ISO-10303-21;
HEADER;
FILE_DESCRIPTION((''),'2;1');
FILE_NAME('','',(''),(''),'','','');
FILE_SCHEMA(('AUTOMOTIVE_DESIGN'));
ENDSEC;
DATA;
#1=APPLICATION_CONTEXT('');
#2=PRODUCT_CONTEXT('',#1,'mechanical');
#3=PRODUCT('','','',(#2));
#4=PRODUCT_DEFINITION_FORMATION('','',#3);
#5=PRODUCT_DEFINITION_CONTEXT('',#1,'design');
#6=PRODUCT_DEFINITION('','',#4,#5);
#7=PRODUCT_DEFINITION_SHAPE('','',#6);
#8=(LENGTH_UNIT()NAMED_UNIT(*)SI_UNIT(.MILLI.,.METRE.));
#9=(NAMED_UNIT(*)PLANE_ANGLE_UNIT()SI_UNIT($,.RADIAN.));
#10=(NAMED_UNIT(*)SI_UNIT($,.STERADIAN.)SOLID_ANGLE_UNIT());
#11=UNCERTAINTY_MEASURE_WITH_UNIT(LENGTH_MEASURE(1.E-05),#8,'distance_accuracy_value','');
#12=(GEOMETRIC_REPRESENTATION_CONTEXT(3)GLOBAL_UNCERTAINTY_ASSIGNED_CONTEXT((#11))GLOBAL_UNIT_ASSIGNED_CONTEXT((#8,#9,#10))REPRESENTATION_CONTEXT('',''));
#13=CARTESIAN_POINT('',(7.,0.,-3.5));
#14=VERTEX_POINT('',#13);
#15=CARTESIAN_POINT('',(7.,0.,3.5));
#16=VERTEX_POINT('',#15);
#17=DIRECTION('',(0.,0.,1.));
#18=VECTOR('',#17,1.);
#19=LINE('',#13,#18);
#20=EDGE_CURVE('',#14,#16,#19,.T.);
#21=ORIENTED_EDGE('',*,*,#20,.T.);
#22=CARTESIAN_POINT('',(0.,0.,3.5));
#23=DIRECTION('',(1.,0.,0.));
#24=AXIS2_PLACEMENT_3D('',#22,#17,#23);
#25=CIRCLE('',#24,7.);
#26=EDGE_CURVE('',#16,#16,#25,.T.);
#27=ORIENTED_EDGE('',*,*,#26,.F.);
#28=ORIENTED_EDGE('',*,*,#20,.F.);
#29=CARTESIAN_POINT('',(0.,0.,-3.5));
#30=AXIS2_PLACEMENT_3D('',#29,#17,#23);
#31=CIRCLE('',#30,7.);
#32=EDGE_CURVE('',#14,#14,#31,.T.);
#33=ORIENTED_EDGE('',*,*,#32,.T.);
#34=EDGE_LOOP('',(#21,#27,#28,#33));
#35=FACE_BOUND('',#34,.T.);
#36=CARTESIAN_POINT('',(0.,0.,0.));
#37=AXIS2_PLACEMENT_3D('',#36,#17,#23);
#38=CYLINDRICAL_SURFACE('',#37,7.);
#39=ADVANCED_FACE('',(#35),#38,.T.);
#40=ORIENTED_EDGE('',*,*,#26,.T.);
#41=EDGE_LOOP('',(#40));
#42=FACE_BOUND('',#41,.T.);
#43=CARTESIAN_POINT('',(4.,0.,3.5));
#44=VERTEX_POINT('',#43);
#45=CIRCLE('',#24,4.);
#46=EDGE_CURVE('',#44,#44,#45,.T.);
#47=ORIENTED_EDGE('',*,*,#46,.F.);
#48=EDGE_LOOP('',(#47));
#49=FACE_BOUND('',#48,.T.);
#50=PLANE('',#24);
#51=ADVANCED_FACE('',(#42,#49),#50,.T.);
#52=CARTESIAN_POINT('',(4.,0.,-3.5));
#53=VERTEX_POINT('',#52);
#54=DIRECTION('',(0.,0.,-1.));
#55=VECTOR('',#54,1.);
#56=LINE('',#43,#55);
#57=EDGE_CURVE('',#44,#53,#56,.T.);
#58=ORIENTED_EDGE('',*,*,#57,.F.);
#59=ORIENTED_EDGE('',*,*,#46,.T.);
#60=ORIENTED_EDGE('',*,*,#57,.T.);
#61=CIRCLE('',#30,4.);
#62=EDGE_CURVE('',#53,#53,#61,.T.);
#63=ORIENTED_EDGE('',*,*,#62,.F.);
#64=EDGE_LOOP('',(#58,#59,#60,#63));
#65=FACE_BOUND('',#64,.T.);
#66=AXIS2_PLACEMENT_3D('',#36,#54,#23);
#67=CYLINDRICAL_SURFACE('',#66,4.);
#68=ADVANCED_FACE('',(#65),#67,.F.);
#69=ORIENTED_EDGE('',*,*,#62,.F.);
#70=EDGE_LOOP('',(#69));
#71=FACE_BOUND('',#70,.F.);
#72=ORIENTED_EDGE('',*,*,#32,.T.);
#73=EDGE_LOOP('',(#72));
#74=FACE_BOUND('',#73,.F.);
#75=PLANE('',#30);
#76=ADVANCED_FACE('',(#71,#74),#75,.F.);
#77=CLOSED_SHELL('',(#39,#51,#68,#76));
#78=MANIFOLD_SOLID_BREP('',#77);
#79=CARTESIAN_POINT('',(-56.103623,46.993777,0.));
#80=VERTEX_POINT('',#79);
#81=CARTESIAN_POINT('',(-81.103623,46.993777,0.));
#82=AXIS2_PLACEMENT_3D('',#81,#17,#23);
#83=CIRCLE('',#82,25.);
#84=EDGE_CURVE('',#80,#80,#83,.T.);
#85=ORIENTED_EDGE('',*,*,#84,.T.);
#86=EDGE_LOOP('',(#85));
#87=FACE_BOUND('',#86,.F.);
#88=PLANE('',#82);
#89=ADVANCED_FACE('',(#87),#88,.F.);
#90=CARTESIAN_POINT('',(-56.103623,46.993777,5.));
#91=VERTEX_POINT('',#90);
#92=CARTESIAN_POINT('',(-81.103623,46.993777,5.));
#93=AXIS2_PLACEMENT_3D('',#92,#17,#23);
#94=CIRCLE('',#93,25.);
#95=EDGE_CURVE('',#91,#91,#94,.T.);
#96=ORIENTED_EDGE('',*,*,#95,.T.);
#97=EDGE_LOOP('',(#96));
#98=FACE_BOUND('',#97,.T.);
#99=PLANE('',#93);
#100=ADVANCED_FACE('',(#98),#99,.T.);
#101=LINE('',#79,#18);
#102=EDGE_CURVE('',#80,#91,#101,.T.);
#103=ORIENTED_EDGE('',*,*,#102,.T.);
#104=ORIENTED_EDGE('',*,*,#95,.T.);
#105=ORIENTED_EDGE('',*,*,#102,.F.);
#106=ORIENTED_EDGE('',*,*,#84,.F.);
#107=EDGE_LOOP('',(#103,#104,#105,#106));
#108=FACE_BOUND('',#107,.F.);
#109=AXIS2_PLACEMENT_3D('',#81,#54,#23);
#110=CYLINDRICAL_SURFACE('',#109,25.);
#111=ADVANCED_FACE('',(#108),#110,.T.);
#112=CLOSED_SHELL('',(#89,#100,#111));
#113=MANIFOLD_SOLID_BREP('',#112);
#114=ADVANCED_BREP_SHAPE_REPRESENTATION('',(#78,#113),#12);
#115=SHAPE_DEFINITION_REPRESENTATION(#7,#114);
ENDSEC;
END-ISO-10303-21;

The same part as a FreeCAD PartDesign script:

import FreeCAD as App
import Part
import Sketcher

V = App.Vector
Q = App.Units.Quantity

doc = App.newDocument("Part")
body = doc.addObject("PartDesign::Body", "Body")

# Sketch on XY plane
sketch1 = doc.addObject("Sketcher::SketchObject", "Sketch")
body.addObject(sketch1)
sketch1.AttachmentSupport = (doc.XY_Plane, [""])
sketch1.MapMode = "FlatFace"
sketch1.addGeometry([
    Part.Circle(V(0, 0, 0), V(0, 0, 1), 7),
    Part.Circle(V(0, 0, 0), V(0, 0, 1), 4),
], False)
sketch1.addConstraint([
    Sketcher.Constraint("Coincident", 0, 3, -1, 1),
    Sketcher.Constraint("Coincident", 1, 3, -1, 1),
    Sketcher.Constraint("Diameter", 0, Q("14 mm")),
    Sketcher.Constraint("Diameter", 1, Q("8 mm")),
])
pad1 = doc.addObject("PartDesign::Pad", "Pad")
body.addObject(pad1)
pad1.Profile = sketch1
pad1.Length = 7
pad1.Midplane = True
body2 = doc.addObject("PartDesign::Body", "Body001")

# Sketch on XY plane
sketch2 = doc.addObject("Sketcher::SketchObject", "Sketch001")
body2.addObject(sketch2)
sketch2.AttachmentSupport = (doc.getObject("XY_Plane001"), [""])
sketch2.MapMode = "FlatFace"
sketch2.addGeometry(Part.Circle(V(-81, 47, 0), V(0, 0, 1), 25), False)
sketch2.addConstraint([
    Sketcher.Constraint("Diameter", 0, Q("50 mm")),
    Sketcher.Constraint("DistanceX", 0, 3, -1, 1, Q("81.103623 mm")),
    Sketcher.Constraint("DistanceY", -1, 1, 0, 3, Q("46.993777 mm")),
])
pad2 = doc.addObject("PartDesign::Pad", "Pad001")
body2.addObject(pad2)
pad2.Profile = sketch2
pad2.Length = 5

doc.recompute()
